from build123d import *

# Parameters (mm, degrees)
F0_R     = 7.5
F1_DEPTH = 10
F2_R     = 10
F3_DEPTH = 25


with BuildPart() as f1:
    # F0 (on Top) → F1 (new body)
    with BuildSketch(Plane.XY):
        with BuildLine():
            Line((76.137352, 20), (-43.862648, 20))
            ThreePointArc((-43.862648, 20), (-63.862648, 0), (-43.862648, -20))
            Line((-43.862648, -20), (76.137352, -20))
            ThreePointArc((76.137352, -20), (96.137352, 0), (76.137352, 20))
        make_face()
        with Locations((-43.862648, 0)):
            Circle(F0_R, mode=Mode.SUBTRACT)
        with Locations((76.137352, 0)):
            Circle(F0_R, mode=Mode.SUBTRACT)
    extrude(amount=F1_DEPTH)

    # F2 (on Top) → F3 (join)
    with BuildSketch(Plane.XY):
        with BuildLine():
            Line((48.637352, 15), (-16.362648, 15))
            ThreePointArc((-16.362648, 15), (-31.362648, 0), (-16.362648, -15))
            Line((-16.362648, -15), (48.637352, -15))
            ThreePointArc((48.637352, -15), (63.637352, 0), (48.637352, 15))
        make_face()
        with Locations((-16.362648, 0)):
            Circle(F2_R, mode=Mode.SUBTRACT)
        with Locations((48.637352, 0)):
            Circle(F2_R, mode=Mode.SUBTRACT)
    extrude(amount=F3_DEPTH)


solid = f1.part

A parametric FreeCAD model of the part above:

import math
import FreeCAD as App
import Part
import Sketcher
from FreeCAD import Vector

doc = App.newDocument("Part")
body = doc.addObject("PartDesign::Body", "Body")

sketch1 = body.newObject("Sketcher::SketchObject", "Sketch")
sketch1.AttachmentSupport = (doc.getObject("XY_Plane"), [""])
sketch1.MapMode = "FlatFace"
sketch1.addGeometry([
    Part.LineSegment(Vector(76, 20, 0), Vector(-44, 20, 0)),
    Part.ArcOfCircle(Part.Circle(Vector(-44, 0, 0), Vector(0, 0, 1), 20), math.radians(90), math.radians(270)),
    Part.LineSegment(Vector(-44, -20, 0), Vector(76, -20, 0)),
    Part.ArcOfCircle(Part.Circle(Vector(76, 0, 0), Vector(0, 0, 1), 20), math.radians(-90), math.radians(90)),
    Part.Circle(Vector(-44, 0, 0), Vector(0, 0, 1), 8),
    Part.Circle(Vector(76, 0, 0), Vector(0, 0, 1), 8),
], False)
sketch1.addConstraint([
    Sketcher.Constraint("Tangent", 0, 2, 1, 1),
    Sketcher.Constraint("Tangent", 1, 2, 2, 1),
    Sketcher.Constraint("Tangent", 2, 2, 3, 1),
    Sketcher.Constraint("Tangent", 3, 2, 0, 1),
    Sketcher.Constraint("Horizontal", 0),
    Sketcher.Constraint("Horizontal", 2),
    Sketcher.Constraint("Coincident", 4, 3, 1, 3),
    Sketcher.Constraint("Coincident", 5, 3, 3, 3),
    Sketcher.Constraint("Equal", 4, 5),
    Sketcher.Constraint("PointOnObject", 1, 3, -1),
    Sketcher.Constraint("Diameter", 4, 15.0),
    Sketcher.Constraint("Radius", 1, 20.0),
    Sketcher.Constraint("DistanceX", 0, 2, 0, 1, 120.0),
    Sketcher.Constraint("DistanceX", 1, 3, -1, 1, 43.862648),
])
pad1 = body.newObject("PartDesign::Pad", "Pad")
pad1.Profile = sketch1
pad1.Length = 10

sketch2 = body.newObject("Sketcher::SketchObject", "Sketch001")
sketch2.AttachmentSupport = (doc.getObject("XY_Plane"), [""])
sketch2.MapMode = "FlatFace"
sketch2.addGeometry([
    Part.LineSegment(Vector(49, 15, 0), Vector(-16, 15, 0)),
    Part.ArcOfCircle(Part.Circle(Vector(-16, 0, 0), Vector(0, 0, 1), 15), math.radians(90), math.radians(270)),
    Part.LineSegment(Vector(-16, -15, 0), Vector(49, -15, 0)),
    Part.ArcOfCircle(Part.Circle(Vector(49, 0, 0), Vector(0, 0, 1), 15), math.radians(-90), math.radians(90)),
    Part.Circle(Vector(-16, 0, 0), Vector(0, 0, 1), 10),
    Part.Circle(Vector(49, 0, 0), Vector(0, 0, 1), 10),
], False)
sketch2.addConstraint([
    Sketcher.Constraint("Tangent", 0, 2, 1, 1),
    Sketcher.Constraint("Tangent", 1, 2, 2, 1),
    Sketcher.Constraint("Tangent", 2, 2, 3, 1),
    Sketcher.Constraint("Tangent", 3, 2, 0, 1),
    Sketcher.Constraint("Horizontal", 0),
    Sketcher.Constraint("Horizontal", 2),
    Sketcher.Constraint("Coincident", 4, 3, 1, 3),
    Sketcher.Constraint("Coincident", 5, 3, 3, 3),
    Sketcher.Constraint("Equal", 4, 5),
    Sketcher.Constraint("PointOnObject", 1, 3, -1),
    Sketcher.Constraint("Diameter", 4, 20.0),
    Sketcher.Constraint("Radius", 1, 15.0),
    Sketcher.Constraint("DistanceX", 0, 2, 0, 1, 65.0),
    Sketcher.Constraint("DistanceX", 1, 3, -1, 1, 16.362648),
])
pad2 = body.newObject("PartDesign::Pad", "Pad001")
pad2.Profile = sketch2
pad2.Length = 25

doc.recompute()
